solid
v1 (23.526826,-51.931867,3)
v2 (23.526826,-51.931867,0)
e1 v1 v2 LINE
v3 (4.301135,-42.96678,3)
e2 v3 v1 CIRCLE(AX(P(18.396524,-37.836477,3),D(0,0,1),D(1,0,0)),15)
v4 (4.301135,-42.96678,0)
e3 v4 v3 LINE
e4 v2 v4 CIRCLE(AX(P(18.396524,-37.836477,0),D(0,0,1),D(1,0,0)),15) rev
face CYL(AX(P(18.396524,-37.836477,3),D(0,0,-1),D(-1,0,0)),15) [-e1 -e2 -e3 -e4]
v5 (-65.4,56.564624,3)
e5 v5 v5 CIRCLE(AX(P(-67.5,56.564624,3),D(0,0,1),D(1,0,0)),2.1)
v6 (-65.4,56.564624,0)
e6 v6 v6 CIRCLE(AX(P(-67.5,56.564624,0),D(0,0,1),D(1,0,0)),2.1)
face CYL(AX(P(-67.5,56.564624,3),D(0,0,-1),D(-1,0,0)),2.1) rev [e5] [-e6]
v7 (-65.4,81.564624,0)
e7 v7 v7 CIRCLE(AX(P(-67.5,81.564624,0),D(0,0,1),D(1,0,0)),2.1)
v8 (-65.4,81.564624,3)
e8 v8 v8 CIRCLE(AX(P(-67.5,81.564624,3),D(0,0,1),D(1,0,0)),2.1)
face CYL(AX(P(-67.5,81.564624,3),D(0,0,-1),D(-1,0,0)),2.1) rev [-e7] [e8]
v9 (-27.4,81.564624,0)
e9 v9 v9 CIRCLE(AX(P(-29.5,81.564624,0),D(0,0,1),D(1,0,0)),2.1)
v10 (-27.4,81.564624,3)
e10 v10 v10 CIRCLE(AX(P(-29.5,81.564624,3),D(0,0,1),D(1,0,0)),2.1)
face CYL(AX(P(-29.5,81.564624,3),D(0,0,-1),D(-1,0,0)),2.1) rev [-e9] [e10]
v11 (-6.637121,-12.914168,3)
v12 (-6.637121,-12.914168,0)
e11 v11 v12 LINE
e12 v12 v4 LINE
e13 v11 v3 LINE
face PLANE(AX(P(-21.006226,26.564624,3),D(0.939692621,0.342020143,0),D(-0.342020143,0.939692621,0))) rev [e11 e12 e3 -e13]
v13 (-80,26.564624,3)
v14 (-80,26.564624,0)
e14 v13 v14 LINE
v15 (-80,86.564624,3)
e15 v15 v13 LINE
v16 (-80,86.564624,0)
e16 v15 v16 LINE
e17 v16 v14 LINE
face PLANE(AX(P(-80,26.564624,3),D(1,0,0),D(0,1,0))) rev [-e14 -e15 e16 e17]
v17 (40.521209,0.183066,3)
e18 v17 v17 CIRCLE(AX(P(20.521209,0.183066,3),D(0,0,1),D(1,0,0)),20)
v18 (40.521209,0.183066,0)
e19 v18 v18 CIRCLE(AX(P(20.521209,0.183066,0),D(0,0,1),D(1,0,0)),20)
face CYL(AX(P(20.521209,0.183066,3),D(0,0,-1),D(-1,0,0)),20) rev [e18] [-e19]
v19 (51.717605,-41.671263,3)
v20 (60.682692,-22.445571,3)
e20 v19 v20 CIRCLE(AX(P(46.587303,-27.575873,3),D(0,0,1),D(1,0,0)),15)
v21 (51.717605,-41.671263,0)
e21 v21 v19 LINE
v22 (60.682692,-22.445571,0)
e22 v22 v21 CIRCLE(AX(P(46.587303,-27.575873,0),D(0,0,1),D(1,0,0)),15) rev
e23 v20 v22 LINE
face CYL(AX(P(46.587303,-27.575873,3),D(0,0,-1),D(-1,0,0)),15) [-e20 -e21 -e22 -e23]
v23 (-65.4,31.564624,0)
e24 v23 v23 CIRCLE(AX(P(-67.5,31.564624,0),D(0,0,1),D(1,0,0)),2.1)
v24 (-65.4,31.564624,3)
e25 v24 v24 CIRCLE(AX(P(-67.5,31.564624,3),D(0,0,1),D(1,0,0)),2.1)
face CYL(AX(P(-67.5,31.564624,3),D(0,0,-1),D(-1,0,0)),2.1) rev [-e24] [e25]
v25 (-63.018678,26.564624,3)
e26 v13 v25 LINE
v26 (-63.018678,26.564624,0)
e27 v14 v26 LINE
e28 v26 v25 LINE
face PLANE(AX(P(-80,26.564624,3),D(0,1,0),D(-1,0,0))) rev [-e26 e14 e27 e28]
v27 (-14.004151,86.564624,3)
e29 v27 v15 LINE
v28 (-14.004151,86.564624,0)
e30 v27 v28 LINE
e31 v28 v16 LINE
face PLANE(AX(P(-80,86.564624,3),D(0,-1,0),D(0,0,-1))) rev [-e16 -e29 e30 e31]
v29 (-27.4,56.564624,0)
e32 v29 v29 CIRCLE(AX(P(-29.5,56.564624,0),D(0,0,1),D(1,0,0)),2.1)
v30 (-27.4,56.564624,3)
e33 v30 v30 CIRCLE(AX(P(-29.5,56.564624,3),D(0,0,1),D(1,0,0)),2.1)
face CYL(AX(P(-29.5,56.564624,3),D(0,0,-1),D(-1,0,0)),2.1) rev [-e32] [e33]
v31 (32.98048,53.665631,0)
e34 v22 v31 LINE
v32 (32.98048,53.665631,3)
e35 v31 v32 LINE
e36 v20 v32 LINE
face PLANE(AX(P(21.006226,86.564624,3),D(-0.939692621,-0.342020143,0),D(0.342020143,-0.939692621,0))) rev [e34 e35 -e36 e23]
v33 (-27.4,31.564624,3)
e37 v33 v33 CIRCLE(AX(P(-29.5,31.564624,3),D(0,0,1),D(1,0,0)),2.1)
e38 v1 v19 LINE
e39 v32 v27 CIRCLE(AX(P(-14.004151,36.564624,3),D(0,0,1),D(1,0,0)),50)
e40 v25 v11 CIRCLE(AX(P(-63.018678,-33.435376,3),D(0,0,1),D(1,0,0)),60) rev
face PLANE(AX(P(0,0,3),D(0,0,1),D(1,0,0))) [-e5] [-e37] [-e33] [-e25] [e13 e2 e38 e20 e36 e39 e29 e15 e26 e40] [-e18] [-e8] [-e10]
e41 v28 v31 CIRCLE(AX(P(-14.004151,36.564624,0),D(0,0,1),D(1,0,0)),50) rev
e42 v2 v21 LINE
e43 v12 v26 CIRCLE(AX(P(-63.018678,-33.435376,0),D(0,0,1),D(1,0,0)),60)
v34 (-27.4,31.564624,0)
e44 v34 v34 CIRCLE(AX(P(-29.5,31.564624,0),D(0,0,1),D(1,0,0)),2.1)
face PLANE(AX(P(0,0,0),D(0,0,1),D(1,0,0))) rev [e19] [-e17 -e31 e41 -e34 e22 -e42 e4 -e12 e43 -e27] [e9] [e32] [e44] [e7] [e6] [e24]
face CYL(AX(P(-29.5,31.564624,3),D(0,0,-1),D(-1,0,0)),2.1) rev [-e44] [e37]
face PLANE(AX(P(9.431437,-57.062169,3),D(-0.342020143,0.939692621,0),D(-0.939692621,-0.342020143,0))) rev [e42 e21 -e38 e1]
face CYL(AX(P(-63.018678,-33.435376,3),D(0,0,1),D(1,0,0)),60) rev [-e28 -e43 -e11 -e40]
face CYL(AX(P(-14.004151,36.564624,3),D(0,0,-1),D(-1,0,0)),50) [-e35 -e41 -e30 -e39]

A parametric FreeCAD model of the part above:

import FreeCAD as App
import Part
import Sketcher
Q = App.Units.Quantity


def edges_at(feature, points):
    """Names of the edges that pass closest to the given points."""
    edges = feature.Shape.Edges
    near = lambda p: min(range(len(edges)), key=lambda i: edges[i].distToShape(Part.Vertex(*p))[0])
    return sorted({f"Edge{near(p) + 1}" for p in points})

doc = App.newDocument("Part")
body = doc.addObject("PartDesign::Body", "Body")

sketch1 = body.newObject("Sketcher::SketchObject", "Sketch")
sketch1.AttachmentSupport = (doc.getObject("XY_Plane"), [""])
sketch1.MapMode = "FlatFace"
sketch1.addGeometry([
    Part.LineSegment(App.Vector(-80, 86.564624, 0), App.Vector(-80, 26.564624, 0)),
    Part.LineSegment(App.Vector(-80, 26.564624, 0), App.Vector(-21.006226, 26.564624, 0)),
    Part.LineSegment(App.Vector(-21.006226, 26.564624, 0), App.Vector(9.431437, -57.062169, 0)),
    Part.LineSegment(App.Vector(9.431437, -57.062169, 0), App.Vector(65.812994, -36.54096, 0)),
    Part.LineSegment(App.Vector(65.812994, -36.54096, 0), App.Vector(21.006226, 86.564624, 0)),
    Part.LineSegment(App.Vector(21.006226, 86.564624, 0), App.Vector(-80, 86.564624, 0)),
    Part.Circle(App.Vector(20.521209, 0.183066, 0), App.Vector(0, 0, 1), 20),
    Part.Circle(App.Vector(-29.5, 31.564624, 0), App.Vector(0, 0, 1), 2.1),
    Part.Circle(App.Vector(-67.5, 31.564624, 0), App.Vector(0, 0, 1), 2.1),
    Part.Circle(App.Vector(-29.5, 56.564624, 0), App.Vector(0, 0, 1), 2.1),
    Part.Circle(App.Vector(-67.5, 56.564624, 0), App.Vector(0, 0, 1), 2.1),
    Part.Circle(App.Vector(-29.5, 81.564624, 0), App.Vector(0, 0, 1), 2.1),
    Part.Circle(App.Vector(-67.5, 81.564624, 0), App.Vector(0, 0, 1), 2.1),
], False)
sketch1.addConstraint([
    Sketcher.Constraint("Coincident", 0, 2, 1, 1),
    Sketcher.Constraint("Coincident", 1, 2, 2, 1),
    Sketcher.Constraint("Coincident", 2, 2, 3, 1),
    Sketcher.Constraint("Coincident", 3, 2, 4, 1),
    Sketcher.Constraint("Coincident", 4, 2, 5, 1),
    Sketcher.Constraint("Coincident", 5, 2, 0, 1),
    Sketcher.Constraint("Vertical", 0),
    Sketcher.Constraint("Horizontal", 1),
    Sketcher.Constraint("Horizontal", 5),
    Sketcher.Constraint("Equal", 7, 8),
    Sketcher.Constraint("Equal", 8, 9),
    Sketcher.Constraint("Equal", 9, 10),
    Sketcher.Constraint("Equal", 10, 11),
    Sketcher.Constraint("Equal", 11, 12),
    Sketcher.Constraint("Perpendicular", 2, 3),
    Sketcher.Constraint("Perpendicular", 3, 4),
    Sketcher.Constraint("Horizontal", 7, 3, 8, 3),
    Sketcher.Constraint("Horizontal", 9, 3, 10, 3),
    Sketcher.Constraint("Horizontal", 11, 3, 12, 3),
    Sketcher.Constraint("Vertical", 7, 3, 9, 3),
    Sketcher.Constraint("Vertical", 8, 3, 10, 3),
    Sketcher.Constraint("Vertical", 9, 3, 11, 3),
    Sketcher.Constraint("Vertical", 10, 3, 12, 3),
    Sketcher.Constraint("Diameter", 6, Q("40 mm")),
    Sketcher.Constraint("Diameter", 7, Q("4.2 mm")),
    Sketcher.Constraint("DistanceY", 0, 2, 0, 1, Q("60 mm")),
    Sketcher.Constraint("Angle", 2, Q("-70 deg")),
    Sketcher.Constraint("Distance", 3, Q("60 mm")),
    Sketcher.Constraint("DistanceX", 0, 2, -1, 1, Q("80 mm")),
    Sketcher.Constraint("DistanceX", 8, 3, 7, 3, Q("38 mm")),
    Sketcher.Constraint("DistanceY", 7, 3, 9, 3, Q("25 mm")),
    Sketcher.Constraint("DistanceY", 9, 3, 11, 3, Q("25 mm")),
    Sketcher.Constraint("DistanceY", 0, 2, 8, 3, Q("5 mm")),
    Sketcher.Constraint("DistanceX", 7, 3, -1, 1, Q("29.5 mm")),
    Sketcher.Constraint("DistanceX", 1, 1, 1, 2, Q("58.993774 mm")),
    Sketcher.Constraint("DistanceX", -1, 1, 6, 3, Q("20.521209 mm")),
    Sketcher.Constraint("DistanceY", 2, 2, -1, 1, Q("57.062169 mm")),
    Sketcher.Constraint("DistanceX", 2, 2, 6, 3, Q("11.089771 mm")),
    Sketcher.Constraint("DistanceY", -1, 1, 6, 3, Q("0.183066 mm")),
])
pad1 = body.newObject("PartDesign::Pad", "Pad")
pad1.Profile = sketch1
pad1.Length = 3
doc.recompute()

fillet = body.newObject("PartDesign::Fillet", "Fillet")
fillet.Base = (pad1, edges_at(pad1, [(21.006, 86.565, 1.5)]))
fillet.Radius = 50
doc.recompute()

fillet2 = body.newObject("PartDesign::Fillet", "Fillet001")
fillet2.Base = (fillet, edges_at(fillet, [(-21.006, 26.565, 1.5)]))
fillet2.Radius = 60
doc.recompute()

fillet3 = body.newObject("PartDesign::Fillet", "Fillet002")
fillet3.Base = (fillet2, edges_at(fillet2, [(65.813, -36.541, 1.5), (9.431, -57.062, 1.5)]))
fillet3.Radius = 15

doc.recompute()
